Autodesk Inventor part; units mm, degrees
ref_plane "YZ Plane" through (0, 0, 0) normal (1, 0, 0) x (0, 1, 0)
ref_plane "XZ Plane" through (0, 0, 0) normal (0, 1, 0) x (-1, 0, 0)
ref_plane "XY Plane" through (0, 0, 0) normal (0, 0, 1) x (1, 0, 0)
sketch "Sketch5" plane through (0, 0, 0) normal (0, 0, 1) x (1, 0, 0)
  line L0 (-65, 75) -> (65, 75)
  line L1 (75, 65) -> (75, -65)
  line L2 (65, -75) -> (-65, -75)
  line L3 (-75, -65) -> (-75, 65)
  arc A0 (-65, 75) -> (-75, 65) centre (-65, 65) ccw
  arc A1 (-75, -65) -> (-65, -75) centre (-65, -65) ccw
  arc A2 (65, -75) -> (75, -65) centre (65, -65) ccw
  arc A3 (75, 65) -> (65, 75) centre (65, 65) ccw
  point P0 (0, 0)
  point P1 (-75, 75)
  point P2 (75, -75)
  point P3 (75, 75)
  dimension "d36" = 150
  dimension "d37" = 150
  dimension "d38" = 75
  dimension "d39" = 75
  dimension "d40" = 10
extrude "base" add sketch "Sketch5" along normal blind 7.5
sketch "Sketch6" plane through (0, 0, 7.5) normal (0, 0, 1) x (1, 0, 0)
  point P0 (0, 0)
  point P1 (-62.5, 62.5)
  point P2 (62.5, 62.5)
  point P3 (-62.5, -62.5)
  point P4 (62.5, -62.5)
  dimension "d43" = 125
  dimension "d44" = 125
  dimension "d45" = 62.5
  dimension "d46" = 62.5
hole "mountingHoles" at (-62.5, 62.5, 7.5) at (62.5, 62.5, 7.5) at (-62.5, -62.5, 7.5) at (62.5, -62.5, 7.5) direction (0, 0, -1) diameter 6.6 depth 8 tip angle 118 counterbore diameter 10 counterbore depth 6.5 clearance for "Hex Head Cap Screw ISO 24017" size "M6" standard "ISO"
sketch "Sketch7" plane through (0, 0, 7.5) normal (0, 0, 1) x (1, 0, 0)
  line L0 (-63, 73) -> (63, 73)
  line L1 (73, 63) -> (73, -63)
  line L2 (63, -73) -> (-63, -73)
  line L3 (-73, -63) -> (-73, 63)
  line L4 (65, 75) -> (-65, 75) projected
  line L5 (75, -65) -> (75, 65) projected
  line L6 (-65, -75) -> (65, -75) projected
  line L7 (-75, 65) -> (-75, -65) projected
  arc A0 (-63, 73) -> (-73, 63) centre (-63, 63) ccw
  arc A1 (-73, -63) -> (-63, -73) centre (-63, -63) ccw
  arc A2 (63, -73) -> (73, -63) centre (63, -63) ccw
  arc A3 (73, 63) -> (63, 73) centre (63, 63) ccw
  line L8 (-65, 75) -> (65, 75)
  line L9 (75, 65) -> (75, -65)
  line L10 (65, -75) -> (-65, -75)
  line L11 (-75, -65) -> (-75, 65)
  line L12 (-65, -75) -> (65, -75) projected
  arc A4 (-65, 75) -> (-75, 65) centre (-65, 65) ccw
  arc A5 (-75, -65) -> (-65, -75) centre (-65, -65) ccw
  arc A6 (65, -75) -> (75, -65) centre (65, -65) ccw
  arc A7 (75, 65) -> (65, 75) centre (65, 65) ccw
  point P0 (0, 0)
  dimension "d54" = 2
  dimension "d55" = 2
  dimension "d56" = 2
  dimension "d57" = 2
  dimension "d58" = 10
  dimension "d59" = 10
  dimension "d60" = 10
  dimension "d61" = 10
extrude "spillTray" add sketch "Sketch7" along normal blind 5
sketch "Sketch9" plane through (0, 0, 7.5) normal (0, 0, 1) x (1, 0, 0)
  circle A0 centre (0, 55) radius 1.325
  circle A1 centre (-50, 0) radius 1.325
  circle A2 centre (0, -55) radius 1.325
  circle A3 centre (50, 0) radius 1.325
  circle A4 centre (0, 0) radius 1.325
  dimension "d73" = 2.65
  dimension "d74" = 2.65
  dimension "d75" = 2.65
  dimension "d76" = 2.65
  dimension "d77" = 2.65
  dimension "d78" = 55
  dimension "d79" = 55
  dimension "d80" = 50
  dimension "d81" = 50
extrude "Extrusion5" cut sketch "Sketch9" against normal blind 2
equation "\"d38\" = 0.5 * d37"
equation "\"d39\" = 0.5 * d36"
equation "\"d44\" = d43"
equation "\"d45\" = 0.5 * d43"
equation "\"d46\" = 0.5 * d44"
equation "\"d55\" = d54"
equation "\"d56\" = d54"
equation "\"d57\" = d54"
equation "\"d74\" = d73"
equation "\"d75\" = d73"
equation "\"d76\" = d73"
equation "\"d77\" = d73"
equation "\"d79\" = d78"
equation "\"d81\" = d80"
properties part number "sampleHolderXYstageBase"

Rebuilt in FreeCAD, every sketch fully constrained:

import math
import FreeCAD as App
import Part
import Sketcher
from FreeCAD import Vector
Q = App.Units.Quantity

doc = App.newDocument("Part")
body = doc.addObject("PartDesign::Body", "Body")

# Sketch on XY plane
sketch1 = body.newObject("Sketcher::SketchObject", "Sketch")
sketch1.AttachmentSupport = (doc.getObject("XY_Plane"), [""])
sketch1.MapMode = "FlatFace"
sketch1.addGeometry(Part.LineSegment(Vector(65, 75, 0), Vector(-65, 75, 0)), False)
sketch1.addGeometry(Part.ArcOfCircle(Part.Circle(Vector(-65, 65, 0), Vector(0, 0, 1), 10), math.radians(90), math.radians(180)), False)
sketch1.addGeometry(Part.LineSegment(Vector(-75, 65, 0), Vector(-75, -65, 0)), False)
sketch1.addGeometry(Part.ArcOfCircle(Part.Circle(Vector(-65, -65, 0), Vector(0, 0, 1), 10), math.radians(180), math.radians(270)), False)
sketch1.addGeometry(Part.LineSegment(Vector(-65, -75, 0), Vector(65, -75, 0)), False)
sketch1.addGeometry(Part.ArcOfCircle(Part.Circle(Vector(65, -65, 0), Vector(0, 0, 1), 10), math.radians(-90), math.radians(0)), False)
sketch1.addGeometry(Part.LineSegment(Vector(75, -65, 0), Vector(75, 65, 0)), False)
sketch1.addGeometry(Part.ArcOfCircle(Part.Circle(Vector(65, 65, 0), Vector(0, 0, 1), 10), math.radians(0), math.radians(90)), False)
sketch1.addConstraint(Sketcher.Constraint("Tangent", 0, 2, 1, 1))
sketch1.addConstraint(Sketcher.Constraint("Tangent", 1, 2, 2, 1))
sketch1.addConstraint(Sketcher.Constraint("Tangent", 2, 2, 3, 1))
sketch1.addConstraint(Sketcher.Constraint("Tangent", 3, 2, 4, 1))
sketch1.addConstraint(Sketcher.Constraint("Tangent", 4, 2, 5, 1))
sketch1.addConstraint(Sketcher.Constraint("Tangent", 5, 2, 6, 1))
sketch1.addConstraint(Sketcher.Constraint("Tangent", 6, 2, 7, 1))
sketch1.addConstraint(Sketcher.Constraint("Tangent", 7, 2, 0, 1))
sketch1.addConstraint(Sketcher.Constraint("Horizontal", 0))
sketch1.addConstraint(Sketcher.Constraint("Vertical", 2))
sketch1.addConstraint(Sketcher.Constraint("Horizontal", 4))
sketch1.addConstraint(Sketcher.Constraint("Vertical", 6))
sketch1.addConstraint(Sketcher.Constraint("Equal", 1, 3))
sketch1.addConstraint(Sketcher.Constraint("Equal", 3, 5))
sketch1.addConstraint(Sketcher.Constraint("Equal", 5, 7))
sketch1.addConstraint(Sketcher.Constraint("Symmetric", 1, 3, 5, 3, -1, 1))
sketch1.addConstraint(Sketcher.Constraint("Equal", 4, 2))
sketch1.addConstraint(Sketcher.Constraint("Radius", 1, Q("10 mm")))
sketch1.addConstraint(Sketcher.Constraint("DistanceY", -1, 1, 0, 2, Q("75 mm")))
pad1 = body.newObject("PartDesign::Pad", "Pad")
pad1.Profile = sketch1
pad1.Length = 7.5

# Sketch on XY plane
sketch2 = body.newObject("Sketcher::SketchObject", "Sketch001")
sketch2.AttachmentSupport = (doc.getObject("XY_Plane"), [""])
sketch2.MapMode = "FlatFace"
sketch2.AttachmentOffset = App.Placement(Vector(0, 0, 7.5), App.Rotation())
sketch2.addGeometry(Part.Circle(Vector(-62.5, 62.5, 0), Vector(0, 0, 1), 3.3), False)
sketch2.addGeometry(Part.Circle(Vector(62.5, 62.5, 0), Vector(0, 0, 1), 3.3), False)
sketch2.addGeometry(Part.Circle(Vector(-62.5, -62.5, 0), Vector(0, 0, 1), 3.3), False)
sketch2.addGeometry(Part.Circle(Vector(62.5, -62.5, 0), Vector(0, 0, 1), 3.3), False)
sketch2.addConstraint(Sketcher.Constraint("Equal", 0, 1))
sketch2.addConstraint(Sketcher.Constraint("Equal", 1, 2))
sketch2.addConstraint(Sketcher.Constraint("Equal", 2, 3))
sketch2.addConstraint(Sketcher.Constraint("Symmetric", 1, 3, 2, 3, -1, 1))
sketch2.addConstraint(Sketcher.Constraint("Symmetric", 0, 3, 3, 3, -1, 1))
sketch2.addConstraint(Sketcher.Constraint("Symmetric", 0, 3, 1, 3, -2))
sketch2.addConstraint(Sketcher.Constraint("Diameter", 0, Q("6.6 mm")))
sketch2.addConstraint(Sketcher.Constraint("DistanceX", 0, 3, 1, 3, Q("125 mm")))
sketch2.addConstraint(Sketcher.Constraint("DistanceY", 2, 3, 0, 3, Q("125 mm")))
doc.recompute()
hole = body.newObject("PartDesign::Hole", "Hole")
hole.Profile = sketch2
hole.ThreadType = "None"
hole.Diameter = 6.6
hole.DepthType = "Dimension"
hole.Depth = 8
hole.DrillPoint = "Angled"
hole.DrillPointAngle = 118
hole.HoleCutType = "Counterbore"
hole.HoleCutDiameter = 10
hole.HoleCutDepth = 6.5

# Sketch on XY plane
sketch3 = body.newObject("Sketcher::SketchObject", "Sketch002")
sketch3.AttachmentSupport = (doc.getObject("XY_Plane"), [""])
sketch3.MapMode = "FlatFace"
sketch3.AttachmentOffset = App.Placement(Vector(0, 0, 7.5), App.Rotation())
sketch3.addGeometry(Part.ArcOfCircle(Part.Circle(Vector(65, 65, 0), Vector(0, 0, 1), 10), math.radians(0), math.radians(90)), False)
sketch3.addGeometry(Part.LineSegment(Vector(65, 75, 0), Vector(-65, 75, 0)), False)
sketch3.addGeometry(Part.ArcOfCircle(Part.Circle(Vector(-65, 65, 0), Vector(0, 0, 1), 10), math.radians(90), math.radians(180)), False)
sketch3.addGeometry(Part.LineSegment(Vector(-75, 65, 0), Vector(-75, -65, 0)), False)
sketch3.addGeometry(Part.ArcOfCircle(Part.Circle(Vector(-65, -65, 0), Vector(0, 0, 1), 10), math.radians(180), math.radians(270)), False)
sketch3.addGeometry(Part.LineSegment(Vector(-65, -75, 0), Vector(65, -75, 0)), False)
sketch3.addGeometry(Part.ArcOfCircle(Part.Circle(Vector(65, -65, 0), Vector(0, 0, 1), 10), math.radians(-90), math.radians(0)), False)
sketch3.addGeometry(Part.LineSegment(Vector(75, -65, 0), Vector(75, 65, 0)), False)
sketch3.addGeometry(Part.ArcOfCircle(Part.Circle(Vector(-63, 63, 0), Vector(0, 0, 1), 10), math.radians(90), math.radians(180)), False)
sketch3.addGeometry(Part.LineSegment(Vector(-63, 73, 0), Vector(63, 73, 0)), False)
sketch3.addGeometry(Part.ArcOfCircle(Part.Circle(Vector(63, 63, 0), Vector(0, 0, 1), 10), math.radians(0), math.radians(90)), False)
sketch3.addGeometry(Part.LineSegment(Vector(73, 63, 0), Vector(73, -63, 0)), False)
sketch3.addGeometry(Part.ArcOfCircle(Part.Circle(Vector(63, -63, 0), Vector(0, 0, 1), 10), math.radians(-90), math.radians(0)), False)
sketch3.addGeometry(Part.LineSegment(Vector(63, -73, 0), Vector(-63, -73, 0)), False)
sketch3.addGeometry(Part.ArcOfCircle(Part.Circle(Vector(-63, -63, 0), Vector(0, 0, 1), 10), math.radians(180), math.radians(270)), False)
sketch3.addGeometry(Part.LineSegment(Vector(-73, -63, 0), Vector(-73, 63, 0)), False)
sketch3.addConstraint(Sketcher.Constraint("Tangent", 0, 2, 1, 1))
sketch3.addConstraint(Sketcher.Constraint("Tangent", 1, 2, 2, 1))
sketch3.addConstraint(Sketcher.Constraint("Tangent", 2, 2, 3, 1))
sketch3.addConstraint(Sketcher.Constraint("Tangent", 3, 2, 4, 1))
sketch3.addConstraint(Sketcher.Constraint("Tangent", 4, 2, 5, 1))
sketch3.addConstraint(Sketcher.Constraint("Tangent", 5, 2, 6, 1))
sketch3.addConstraint(Sketcher.Constraint("Tangent", 6, 2, 7, 1))
sketch3.addConstraint(Sketcher.Constraint("Tangent", 7, 2, 0, 1))
sketch3.addConstraint(Sketcher.Constraint("Tangent", 8, 1, 9, 1))
sketch3.addConstraint(Sketcher.Constraint("Tangent", 9, 2, 10, 2))
sketch3.addConstraint(Sketcher.Constraint("Tangent", 10, 1, 11, 1))
sketch3.addConstraint(Sketcher.Constraint("Tangent", 11, 2, 12, 2))
sketch3.addConstraint(Sketcher.Constraint("Tangent", 12, 1, 13, 1))
sketch3.addConstraint(Sketcher.Constraint("Tangent", 13, 2, 14, 2))
sketch3.addConstraint(Sketcher.Constraint("Tangent", 14, 1, 15, 1))
sketch3.addConstraint(Sketcher.Constraint("Tangent", 15, 2, 8, 2))
sketch3.addConstraint(Sketcher.Constraint("Horizontal", 1))
sketch3.addConstraint(Sketcher.Constraint("Vertical", 3))
sketch3.addConstraint(Sketcher.Constraint("Horizontal", 5))
sketch3.addConstraint(Sketcher.Constraint("Vertical", 7))
sketch3.addConstraint(Sketcher.Constraint("Horizontal", 9))
sketch3.addConstraint(Sketcher.Constraint("Vertical", 11))
sketch3.addConstraint(Sketcher.Constraint("Horizontal", 13))
sketch3.addConstraint(Sketcher.Constraint("Vertical", 15))
sketch3.addConstraint(Sketcher.Constraint("Equal", 0, 2))
sketch3.addConstraint(Sketcher.Constraint("Equal", 2, 4))
sketch3.addConstraint(Sketcher.Constraint("Equal", 4, 6))
sketch3.addConstraint(Sketcher.Constraint("Equal", 6, 8))
sketch3.addConstraint(Sketcher.Constraint("Equal", 8, 10))
sketch3.addConstraint(Sketcher.Constraint("Equal", 10, 12))
sketch3.addConstraint(Sketcher.Constraint("Equal", 12, 14))
sketch3.addConstraint(Sketcher.Constraint("Symmetric", 0, 3, 4, 3, -1, 1))
sketch3.addConstraint(Sketcher.Constraint("Symmetric", 8, 3, 12, 3, -1, 1))
sketch3.addConstraint(Sketcher.Constraint("Equal", 5, 3))
sketch3.addConstraint(Sketcher.Constraint("Equal", 13, 11))
sketch3.addConstraint(Sketcher.Constraint("Radius", 0, Q("10 mm")))
sketch3.addConstraint(Sketcher.Constraint("DistanceX", 2, 3, 8, 3, Q("2 mm")))
sketch3.addConstraint(Sketcher.Constraint("DistanceX", 1, 2, 1, 1, Q("130 mm")))
pad2 = body.newObject("PartDesign::Pad", "Pad001")
pad2.Profile = sketch3
pad2.Length = 5

# Sketch on XY plane
sketch4 = body.newObject("Sketcher::SketchObject", "Sketch003")
sketch4.AttachmentSupport = (doc.getObject("XY_Plane"), [""])
sketch4.MapMode = "FlatFace"
sketch4.AttachmentOffset = App.Placement(Vector(0, 0, 7.5), App.Rotation())
sketch4.addGeometry(Part.Circle(Vector(0, 55, 0), Vector(0, 0, 1), 1.3), False)
sketch4.addGeometry(Part.Circle(Vector(-50, 0, 0), Vector(0, 0, 1), 1.3), False)
sketch4.addGeometry(Part.Circle(Vector(0, -55, 0), Vector(0, 0, 1), 1.3), False)
sketch4.addGeometry(Part.Circle(Vector(50, 0, 0), Vector(0, 0, 1), 1.3), False)
sketch4.addGeometry(Part.Circle(Vector(0, 0, 0), Vector(0, 0, 1), 1.3), False)
sketch4.addConstraint(Sketcher.Constraint("Coincident", 4, 3, -1, 1))
sketch4.addConstraint(Sketcher.Constraint("Equal", 0, 1))
sketch4.addConstraint(Sketcher.Constraint("Equal", 1, 2))
sketch4.addConstraint(Sketcher.Constraint("Equal", 2, 3))
sketch4.addConstraint(Sketcher.Constraint("Equal", 3, 4))
sketch4.addConstraint(Sketcher.Constraint("Symmetric", 0, 3, 2, 3, -1, 1))
sketch4.addConstraint(Sketcher.Constraint("Symmetric", 1, 3, 3, 3, -1, 1))
sketch4.addConstraint(Sketcher.Constraint("PointOnObject", 0, 3, -2))
sketch4.addConstraint(Sketcher.Constraint("PointOnObject", 1, 3, -1))
sketch4.addConstraint(Sketcher.Constraint("Diameter", 0, Q("2.65 mm")))
sketch4.addConstraint(Sketcher.Constraint("DistanceY", -1, 1, 0, 3, Q("55 mm")))
sketch4.addConstraint(Sketcher.Constraint("DistanceX", 1, 3, -1, 1, Q("50 mm")))
pocket1 = body.newObject("PartDesign::Pocket", "Pocket")
pocket1.Profile = sketch4
pocket1.Length = 2

doc.recompute()
